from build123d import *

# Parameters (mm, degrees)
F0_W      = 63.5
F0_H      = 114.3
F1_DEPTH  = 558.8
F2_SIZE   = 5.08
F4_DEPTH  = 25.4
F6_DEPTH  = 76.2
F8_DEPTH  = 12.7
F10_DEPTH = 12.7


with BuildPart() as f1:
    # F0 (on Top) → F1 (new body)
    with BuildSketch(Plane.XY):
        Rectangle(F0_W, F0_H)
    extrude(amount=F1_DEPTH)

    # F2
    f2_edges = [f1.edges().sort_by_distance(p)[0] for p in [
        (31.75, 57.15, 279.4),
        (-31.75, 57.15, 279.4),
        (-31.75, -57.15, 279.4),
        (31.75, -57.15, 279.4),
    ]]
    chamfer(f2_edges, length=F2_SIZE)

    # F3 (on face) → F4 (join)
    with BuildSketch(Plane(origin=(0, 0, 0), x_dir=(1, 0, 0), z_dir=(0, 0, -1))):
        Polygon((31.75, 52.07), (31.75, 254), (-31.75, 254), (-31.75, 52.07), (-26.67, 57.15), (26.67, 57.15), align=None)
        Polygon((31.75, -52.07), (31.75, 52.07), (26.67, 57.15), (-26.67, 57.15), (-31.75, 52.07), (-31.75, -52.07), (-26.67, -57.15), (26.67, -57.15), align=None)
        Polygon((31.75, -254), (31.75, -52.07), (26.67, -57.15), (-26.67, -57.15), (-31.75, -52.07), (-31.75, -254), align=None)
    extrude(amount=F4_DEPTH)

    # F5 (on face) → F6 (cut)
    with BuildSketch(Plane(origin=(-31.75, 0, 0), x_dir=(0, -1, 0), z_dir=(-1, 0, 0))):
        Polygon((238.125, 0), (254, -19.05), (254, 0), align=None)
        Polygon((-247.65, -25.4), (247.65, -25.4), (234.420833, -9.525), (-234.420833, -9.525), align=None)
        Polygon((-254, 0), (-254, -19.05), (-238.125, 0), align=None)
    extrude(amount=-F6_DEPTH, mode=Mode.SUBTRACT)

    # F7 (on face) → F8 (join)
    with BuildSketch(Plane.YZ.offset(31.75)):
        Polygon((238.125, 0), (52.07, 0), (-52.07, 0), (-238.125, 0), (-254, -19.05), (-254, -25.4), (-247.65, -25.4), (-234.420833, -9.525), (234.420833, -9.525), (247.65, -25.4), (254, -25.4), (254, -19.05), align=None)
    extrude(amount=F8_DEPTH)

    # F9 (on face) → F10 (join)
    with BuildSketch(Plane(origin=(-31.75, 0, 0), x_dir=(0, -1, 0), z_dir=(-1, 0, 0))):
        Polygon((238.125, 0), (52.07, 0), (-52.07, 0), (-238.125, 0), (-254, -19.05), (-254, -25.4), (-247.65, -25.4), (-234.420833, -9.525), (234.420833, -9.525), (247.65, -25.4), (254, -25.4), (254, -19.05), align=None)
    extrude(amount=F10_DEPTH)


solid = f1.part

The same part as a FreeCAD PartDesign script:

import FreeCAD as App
import Part
import Sketcher
from FreeCAD import Vector
Q = App.Units.Quantity


def edges_at(feature, points):
    """Names of the edges that pass closest to the given points."""
    edges = feature.Shape.Edges
    near = lambda p: min(range(len(edges)), key=lambda i: edges[i].distToShape(Part.Vertex(*p))[0])
    return sorted({f"Edge{near(p) + 1}" for p in points})

doc = App.newDocument("Part")
params = doc.addObject("Spreadsheet::Sheet", "Params")
for row, (alias, value) in enumerate([
    ("sketch1_width", "2.5 in"),
    ("sketch1_height", "4.5 in"),
    ("pad1_length", "22 in"),
    ("chamfer_size", "0.2 in"),
    ("sketch2_height", "20 in"),
    ("sketch2_width", "2.5 in"),
    ("pad2_length", "1 in"),
    ("sketch3_width", "19.5 in"),
    ("sketch3_height", "0.75 in"),
    ("sketch3_width2", "0.625 in"),
    ("pocket1_length", "3 in"),
    ("sketch4_width", "18.75 in"),
    ("sketch4_width2", "0.25 in"),
    ("pad3_length", "0.5 in"),
    ("sketch5_width", "18.75 in"),
    ("sketch5_width2", "0.25 in"),
    ("pad4_length", "0.5 in"),
], start=1):
    params.set(f"A{row}", alias)
    params.set(f"B{row}", "=" + value)
    params.setAlias(f"B{row}", alias)

body = doc.addObject("PartDesign::Body", "Body")

# Sketch on XY plane
sketch1 = body.newObject("Sketcher::SketchObject", "Sketch")
sketch1.AttachmentSupport = (doc.getObject("XY_Plane"), [""])
sketch1.MapMode = "FlatFace"
sketch1.addGeometry([
    Part.LineSegment(Vector(-31.75, 57.15, 0), Vector(-31.75, -57.15, 0)),
    Part.LineSegment(Vector(-31.75, -57.15, 0), Vector(31.75, -57.15, 0)),
    Part.LineSegment(Vector(31.75, -57.15, 0), Vector(31.75, 57.15, 0)),
    Part.LineSegment(Vector(31.75, 57.15, 0), Vector(-31.75, 57.15, 0)),
], False)
sketch1.addConstraint([
    Sketcher.Constraint("Coincident", 0, 2, 1, 1),
    Sketcher.Constraint("Coincident", 1, 2, 2, 1),
    Sketcher.Constraint("Coincident", 2, 2, 3, 1),
    Sketcher.Constraint("Coincident", 3, 2, 0, 1),
    Sketcher.Constraint("Vertical", 0),
    Sketcher.Constraint("Horizontal", 1),
    Sketcher.Constraint("Vertical", 2),
    Sketcher.Constraint("Horizontal", 3),
    Sketcher.Constraint("Symmetric", 0, 2, 2, 2, -1, 1),
    Sketcher.Constraint("DistanceX", 1, 1, 1, 2, Q("2.5 in")),
    Sketcher.Constraint("DistanceY", 0, 2, 0, 1, Q("4.5 in")),
])
sketch1.setExpression("Constraints[9]", "Params.sketch1_width")
sketch1.setExpression("Constraints[10]", "Params.sketch1_height")
pad1 = body.newObject("PartDesign::Pad", "Pad")
pad1.Profile = sketch1
pad1.setExpression("Length", "Params.pad1_length")
doc.recompute()

chamfer = body.newObject("PartDesign::Chamfer", "Chamfer")
chamfer.Base = (pad1, edges_at(pad1, [
    (31.75, 57.15, 279.4),
    (-31.75, 57.15, 279.4),
    (-31.75, -57.15, 279.4),
    (31.75, -57.15, 279.4),
]))
chamfer.setExpression("Size", "Params.chamfer_size")

# Sketch on XY plane
sketch2 = body.newObject("Sketcher::SketchObject", "Sketch001")
sketch2.AttachmentSupport = (doc.getObject("XY_Plane"), [""])
sketch2.MapMode = "FlatFace"
sketch2.addGeometry([
    Part.LineSegment(Vector(31.75, -254, 0), Vector(-31.75, -254, 0)),
    Part.LineSegment(Vector(-31.75, -254, 0), Vector(-31.75, 254, 0)),
    Part.LineSegment(Vector(-31.75, 254, 0), Vector(31.75, 254, 0)),
    Part.LineSegment(Vector(31.75, 254, 0), Vector(31.75, -254, 0)),
], False)
sketch2.addConstraint([
    Sketcher.Constraint("Coincident", 0, 2, 1, 1),
    Sketcher.Constraint("Coincident", 1, 2, 2, 1),
    Sketcher.Constraint("Coincident", 2, 2, 3, 1),
    Sketcher.Constraint("Coincident", 3, 2, 0, 1),
    Sketcher.Constraint("Horizontal", 0),
    Sketcher.Constraint("Vertical", 1),
    Sketcher.Constraint("Horizontal", 2),
    Sketcher.Constraint("Vertical", 3),
    Sketcher.Constraint("Symmetric", 0, 2, 2, 2, -1, 1),
    Sketcher.Constraint("DistanceY", 1, 1, 1, 2, Q("20 in")),
    Sketcher.Constraint("DistanceX", 0, 2, 0, 1, Q("2.5 in")),
])
sketch2.setExpression("Constraints[9]", "Params.sketch2_height")
sketch2.setExpression("Constraints[10]", "Params.sketch2_width")
pad2 = body.newObject("PartDesign::Pad", "Pad001")
pad2.Profile = sketch2
pad2.setExpression("Length", "Params.pad2_length")
pad2.Reversed = True

# Sketch on YZ plane
sketch3 = body.newObject("Sketcher::SketchObject", "Sketch002")
sketch3.AttachmentSupport = (doc.getObject("YZ_Plane"), [""])
sketch3.MapMode = "FlatFace"
sketch3.AttachmentOffset = App.Placement(Vector(0, 0, -1.25 * 25.4), App.Rotation())
sketch3.addGeometry([
    Part.LineSegment(Vector(-238.125, 0, 0), Vector(-254, -19.05, 0)),  # 0
    Part.LineSegment(Vector(-254, -19.05, 0), Vector(-254, 0, 0)),  # 1
    Part.LineSegment(Vector(-254, 0, 0), Vector(-238.125, 0, 0)),  # 2
    Part.LineSegment(Vector(247.65, -25.4, 0), Vector(-247.65, -25.4, 0)),  # 3
    Part.LineSegment(Vector(-247.65, -25.4, 0), Vector(-234.420833, -9.525, 0)),  # 4
    Part.LineSegment(Vector(-234.420833, -9.525, 0), Vector(234.420833, -9.525, 0)),  # 5
    Part.LineSegment(Vector(234.420833, -9.525, 0), Vector(247.65, -25.4, 0)),  # 6
    Part.LineSegment(Vector(254, 0, 0), Vector(254, -19.05, 0)),  # 7
    Part.LineSegment(Vector(254, -19.05, 0), Vector(238.125, 0, 0)),  # 8
    Part.LineSegment(Vector(238.125, 0, 0), Vector(254, 0, 0)),  # 9
], False)
sketch3.addConstraint([
    Sketcher.Constraint("Coincident", 0, 2, 1, 1),
    Sketcher.Constraint("Coincident", 1, 2, 2, 1),
    Sketcher.Constraint("Coincident", 2, 2, 0, 1),
    Sketcher.Constraint("Coincident", 3, 2, 4, 1),
    Sketcher.Constraint("Coincident", 4, 2, 5, 1),
    Sketcher.Constraint("Coincident", 5, 2, 6, 1),
    Sketcher.Constraint("Coincident", 6, 2, 3, 1),
    Sketcher.Constraint("Coincident", 7, 2, 8, 1),
    Sketcher.Constraint("Coincident", 8, 2, 9, 1),
    Sketcher.Constraint("Coincident", 9, 2, 7, 1),
    Sketcher.Constraint("Vertical", 1),
    Sketcher.Constraint("Horizontal", 2),
    Sketcher.Constraint("Horizontal", 3),
    Sketcher.Constraint("Horizontal", 5),
    Sketcher.Constraint("Vertical", 7),
    Sketcher.Constraint("Horizontal", 9),
    Sketcher.Constraint("Symmetric", 2, 2, 8, 2, -1, 1),
    Sketcher.Constraint("Symmetric", 0, 2, 7, 2, -2),
    Sketcher.Constraint("PointOnObject", 1, 2, -1),
    Sketcher.Constraint("Parallel", 0, 4),
    Sketcher.Constraint("Parallel", 6, 8),
    Sketcher.Constraint("DistanceX", 3, 2, 3, 1, Q("19.5 in")),
    Sketcher.Constraint("DistanceX", 0, 2, -1, 1, Q("10 in")),
    Sketcher.Constraint("DistanceY", 3, 2, -1, 1, Q("1 in")),
    Sketcher.Constraint("DistanceY", 1, 1, 1, 2, Q("0.75 in")),
    Sketcher.Constraint("DistanceX", 2, 1, 2, 2, Q("0.625 in")),
    Sketcher.Constraint("DistanceX", 3, 2, -1, 1, Q("9.75 in")),
    Sketcher.Constraint("DistanceY", 4, 2, -1, 1, Q("0.375 in")),
])
sketch3.setExpression("Constraints[21]", "Params.sketch3_width")
sketch3.setExpression("Constraints[24]", "Params.sketch3_height")
sketch3.setExpression("Constraints[25]", "Params.sketch3_width2")
pocket1 = body.newObject("PartDesign::Pocket", "Pocket")
pocket1.Profile = sketch3
pocket1.setExpression("Length", "Params.pocket1_length")
pocket1.Reversed = True

# Sketch on YZ plane
sketch4 = body.newObject("Sketcher::SketchObject", "Sketch003")
sketch4.AttachmentSupport = (doc.getObject("YZ_Plane"), [""])
sketch4.MapMode = "FlatFace"
sketch4.AttachmentOffset = App.Placement(Vector(0, 0, 1.25 * 25.4), App.Rotation())
sketch4.addGeometry([
    Part.LineSegment(Vector(238.125, 0, 0), Vector(-238.125, 0, 0)),  # 0
    Part.LineSegment(Vector(-238.125, 0, 0), Vector(-254, -19.05, 0)),  # 1
    Part.LineSegment(Vector(-254, -19.05, 0), Vector(-254, -25.4, 0)),  # 2
    Part.LineSegment(Vector(-254, -25.4, 0), Vector(-247.65, -25.4, 0)),  # 3
    Part.LineSegment(Vector(-247.65, -25.4, 0), Vector(-234.420833, -9.525, 0)),  # 4
    Part.LineSegment(Vector(-234.420833, -9.525, 0), Vector(234.420833, -9.525, 0)),  # 5
    Part.LineSegment(Vector(234.420833, -9.525, 0), Vector(247.65, -25.4, 0)),  # 6
    Part.LineSegment(Vector(247.65, -25.4, 0), Vector(254, -25.4, 0)),  # 7
    Part.LineSegment(Vector(254, -25.4, 0), Vector(254, -19.05, 0)),  # 8
    Part.LineSegment(Vector(254, -19.05, 0), Vector(238.125, 0, 0)),  # 9
], False)
sketch4.addConstraint([
    Sketcher.Constraint("Coincident", 0, 2, 1, 1),
    Sketcher.Constraint("Coincident", 1, 2, 2, 1),
    Sketcher.Constraint("Coincident", 2, 2, 3, 1),
    Sketcher.Constraint("Coincident", 3, 2, 4, 1),
    Sketcher.Constraint("Coincident", 4, 2, 5, 1),
    Sketcher.Constraint("Coincident", 5, 2, 6, 1),
    Sketcher.Constraint("Coincident", 6, 2, 7, 1),
    Sketcher.Constraint("Coincident", 7, 2, 8, 1),
    Sketcher.Constraint("Coincident", 8, 2, 9, 1),
    Sketcher.Constraint("Coincident", 9, 2, 0, 1),
    Sketcher.Constraint("Horizontal", 0),
    Sketcher.Constraint("Vertical", 2),
    Sketcher.Constraint("Horizontal", 3),
    Sketcher.Constraint("Horizontal", 5),
    Sketcher.Constraint("Horizontal", 7),
    Sketcher.Constraint("Vertical", 8),
    Sketcher.Constraint("Symmetric", 0, 2, 9, 2, -1, 1),
    Sketcher.Constraint("Symmetric", 3, 2, 6, 2, -2),
    Sketcher.Constraint("Symmetric", 1, 2, 8, 2, -2),
    Sketcher.Constraint("Parallel", 1, 4),
    Sketcher.Constraint("Parallel", 6, 9),
    Sketcher.Constraint("Equal", 7, 2),
    Sketcher.Constraint("DistanceX", 1, 2, -1, 1, Q("10 in")),
    Sketcher.Constraint("DistanceY", 2, 2, -1, 1, Q("1 in")),
    Sketcher.Constraint("DistanceX", 0, 2, 0, 1, Q("18.75 in")),
    Sketcher.Constraint("DistanceX", 3, 1, 3, 2, Q("0.25 in")),
    Sketcher.Constraint("DistanceY", 4, 2, -1, 1, Q("0.375 in")),
])
sketch4.setExpression("Constraints[24]", "Params.sketch4_width")
sketch4.setExpression("Constraints[25]", "Params.sketch4_width2")
pad3 = body.newObject("PartDesign::Pad", "Pad002")
pad3.Profile = sketch4
pad3.setExpression("Length", "Params.pad3_length")

# Sketch on YZ plane
sketch5 = body.newObject("Sketcher::SketchObject", "Sketch004")
sketch5.AttachmentSupport = (doc.getObject("YZ_Plane"), [""])
sketch5.MapMode = "FlatFace"
sketch5.AttachmentOffset = App.Placement(Vector(0, 0, -1.25 * 25.4), App.Rotation())
sketch5.addGeometry([
    Part.LineSegment(Vector(-238.125, 0, 0), Vector(238.125, 0, 0)),  # 0
    Part.LineSegment(Vector(238.125, 0, 0), Vector(254, -19.05, 0)),  # 1
    Part.LineSegment(Vector(254, -19.05, 0), Vector(254, -25.4, 0)),  # 2
    Part.LineSegment(Vector(254, -25.4, 0), Vector(247.65, -25.4, 0)),  # 3
    Part.LineSegment(Vector(247.65, -25.4, 0), Vector(234.420833, -9.525, 0)),  # 4
    Part.LineSegment(Vector(234.420833, -9.525, 0), Vector(-234.420833, -9.525, 0)),  # 5
    Part.LineSegment(Vector(-234.420833, -9.525, 0), Vector(-247.65, -25.4, 0)),  # 6
    Part.LineSegment(Vector(-247.65, -25.4, 0), Vector(-254, -25.4, 0)),  # 7
    Part.LineSegment(Vector(-254, -25.4, 0), Vector(-254, -19.05, 0)),  # 8
    Part.LineSegment(Vector(-254, -19.05, 0), Vector(-238.125, 0, 0)),  # 9
], False)
sketch5.addConstraint([
    Sketcher.Constraint("Coincident", 0, 2, 1, 1),
    Sketcher.Constraint("Coincident", 1, 2, 2, 1),
    Sketcher.Constraint("Coincident", 2, 2, 3, 1),
    Sketcher.Constraint("Coincident", 3, 2, 4, 1),
    Sketcher.Constraint("Coincident", 4, 2, 5, 1),
    Sketcher.Constraint("Coincident", 5, 2, 6, 1),
    Sketcher.Constraint("Coincident", 6, 2, 7, 1),
    Sketcher.Constraint("Coincident", 7, 2, 8, 1),
    Sketcher.Constraint("Coincident", 8, 2, 9, 1),
    Sketcher.Constraint("Coincident", 9, 2, 0, 1),
    Sketcher.Constraint("Horizontal", 0),
    Sketcher.Constraint("Vertical", 2),
    Sketcher.Constraint("Horizontal", 3),
    Sketcher.Constraint("Horizontal", 5),
    Sketcher.Constraint("Horizontal", 7),
    Sketcher.Constraint("Vertical", 8),
    Sketcher.Constraint("Symmetric", 0, 2, 9, 2, -1, 1),
    Sketcher.Constraint("Symmetric", 3, 2, 6, 2, -2),
    Sketcher.Constraint("Symmetric", 1, 2, 8, 2, -2),
    Sketcher.Constraint("Parallel", 1, 4),
    Sketcher.Constraint("Parallel", 6, 9),
    Sketcher.Constraint("Equal", 7, 2),
    Sketcher.Constraint("DistanceX", -1, 1, 1, 2, Q("10 in")),
    Sketcher.Constraint("DistanceY", 2, 2, -1, 1, Q("1 in")),
    Sketcher.Constraint("DistanceX", 0, 1, 0, 2, Q("18.75 in")),
    Sketcher.Constraint("DistanceX", 3, 2, 3, 1, Q("0.25 in")),
    Sketcher.Constraint("DistanceY", 4, 2, -1, 1, Q("0.375 in")),
])
sketch5.setExpression("Constraints[24]", "Params.sketch5_width")
sketch5.setExpression("Constraints[25]", "Params.sketch5_width2")
pad4 = body.newObject("PartDesign::Pad", "Pad003")
pad4.Profile = sketch5
pad4.setExpression("Length", "Params.pad4_length")
pad4.Reversed = True

doc.recompute()
